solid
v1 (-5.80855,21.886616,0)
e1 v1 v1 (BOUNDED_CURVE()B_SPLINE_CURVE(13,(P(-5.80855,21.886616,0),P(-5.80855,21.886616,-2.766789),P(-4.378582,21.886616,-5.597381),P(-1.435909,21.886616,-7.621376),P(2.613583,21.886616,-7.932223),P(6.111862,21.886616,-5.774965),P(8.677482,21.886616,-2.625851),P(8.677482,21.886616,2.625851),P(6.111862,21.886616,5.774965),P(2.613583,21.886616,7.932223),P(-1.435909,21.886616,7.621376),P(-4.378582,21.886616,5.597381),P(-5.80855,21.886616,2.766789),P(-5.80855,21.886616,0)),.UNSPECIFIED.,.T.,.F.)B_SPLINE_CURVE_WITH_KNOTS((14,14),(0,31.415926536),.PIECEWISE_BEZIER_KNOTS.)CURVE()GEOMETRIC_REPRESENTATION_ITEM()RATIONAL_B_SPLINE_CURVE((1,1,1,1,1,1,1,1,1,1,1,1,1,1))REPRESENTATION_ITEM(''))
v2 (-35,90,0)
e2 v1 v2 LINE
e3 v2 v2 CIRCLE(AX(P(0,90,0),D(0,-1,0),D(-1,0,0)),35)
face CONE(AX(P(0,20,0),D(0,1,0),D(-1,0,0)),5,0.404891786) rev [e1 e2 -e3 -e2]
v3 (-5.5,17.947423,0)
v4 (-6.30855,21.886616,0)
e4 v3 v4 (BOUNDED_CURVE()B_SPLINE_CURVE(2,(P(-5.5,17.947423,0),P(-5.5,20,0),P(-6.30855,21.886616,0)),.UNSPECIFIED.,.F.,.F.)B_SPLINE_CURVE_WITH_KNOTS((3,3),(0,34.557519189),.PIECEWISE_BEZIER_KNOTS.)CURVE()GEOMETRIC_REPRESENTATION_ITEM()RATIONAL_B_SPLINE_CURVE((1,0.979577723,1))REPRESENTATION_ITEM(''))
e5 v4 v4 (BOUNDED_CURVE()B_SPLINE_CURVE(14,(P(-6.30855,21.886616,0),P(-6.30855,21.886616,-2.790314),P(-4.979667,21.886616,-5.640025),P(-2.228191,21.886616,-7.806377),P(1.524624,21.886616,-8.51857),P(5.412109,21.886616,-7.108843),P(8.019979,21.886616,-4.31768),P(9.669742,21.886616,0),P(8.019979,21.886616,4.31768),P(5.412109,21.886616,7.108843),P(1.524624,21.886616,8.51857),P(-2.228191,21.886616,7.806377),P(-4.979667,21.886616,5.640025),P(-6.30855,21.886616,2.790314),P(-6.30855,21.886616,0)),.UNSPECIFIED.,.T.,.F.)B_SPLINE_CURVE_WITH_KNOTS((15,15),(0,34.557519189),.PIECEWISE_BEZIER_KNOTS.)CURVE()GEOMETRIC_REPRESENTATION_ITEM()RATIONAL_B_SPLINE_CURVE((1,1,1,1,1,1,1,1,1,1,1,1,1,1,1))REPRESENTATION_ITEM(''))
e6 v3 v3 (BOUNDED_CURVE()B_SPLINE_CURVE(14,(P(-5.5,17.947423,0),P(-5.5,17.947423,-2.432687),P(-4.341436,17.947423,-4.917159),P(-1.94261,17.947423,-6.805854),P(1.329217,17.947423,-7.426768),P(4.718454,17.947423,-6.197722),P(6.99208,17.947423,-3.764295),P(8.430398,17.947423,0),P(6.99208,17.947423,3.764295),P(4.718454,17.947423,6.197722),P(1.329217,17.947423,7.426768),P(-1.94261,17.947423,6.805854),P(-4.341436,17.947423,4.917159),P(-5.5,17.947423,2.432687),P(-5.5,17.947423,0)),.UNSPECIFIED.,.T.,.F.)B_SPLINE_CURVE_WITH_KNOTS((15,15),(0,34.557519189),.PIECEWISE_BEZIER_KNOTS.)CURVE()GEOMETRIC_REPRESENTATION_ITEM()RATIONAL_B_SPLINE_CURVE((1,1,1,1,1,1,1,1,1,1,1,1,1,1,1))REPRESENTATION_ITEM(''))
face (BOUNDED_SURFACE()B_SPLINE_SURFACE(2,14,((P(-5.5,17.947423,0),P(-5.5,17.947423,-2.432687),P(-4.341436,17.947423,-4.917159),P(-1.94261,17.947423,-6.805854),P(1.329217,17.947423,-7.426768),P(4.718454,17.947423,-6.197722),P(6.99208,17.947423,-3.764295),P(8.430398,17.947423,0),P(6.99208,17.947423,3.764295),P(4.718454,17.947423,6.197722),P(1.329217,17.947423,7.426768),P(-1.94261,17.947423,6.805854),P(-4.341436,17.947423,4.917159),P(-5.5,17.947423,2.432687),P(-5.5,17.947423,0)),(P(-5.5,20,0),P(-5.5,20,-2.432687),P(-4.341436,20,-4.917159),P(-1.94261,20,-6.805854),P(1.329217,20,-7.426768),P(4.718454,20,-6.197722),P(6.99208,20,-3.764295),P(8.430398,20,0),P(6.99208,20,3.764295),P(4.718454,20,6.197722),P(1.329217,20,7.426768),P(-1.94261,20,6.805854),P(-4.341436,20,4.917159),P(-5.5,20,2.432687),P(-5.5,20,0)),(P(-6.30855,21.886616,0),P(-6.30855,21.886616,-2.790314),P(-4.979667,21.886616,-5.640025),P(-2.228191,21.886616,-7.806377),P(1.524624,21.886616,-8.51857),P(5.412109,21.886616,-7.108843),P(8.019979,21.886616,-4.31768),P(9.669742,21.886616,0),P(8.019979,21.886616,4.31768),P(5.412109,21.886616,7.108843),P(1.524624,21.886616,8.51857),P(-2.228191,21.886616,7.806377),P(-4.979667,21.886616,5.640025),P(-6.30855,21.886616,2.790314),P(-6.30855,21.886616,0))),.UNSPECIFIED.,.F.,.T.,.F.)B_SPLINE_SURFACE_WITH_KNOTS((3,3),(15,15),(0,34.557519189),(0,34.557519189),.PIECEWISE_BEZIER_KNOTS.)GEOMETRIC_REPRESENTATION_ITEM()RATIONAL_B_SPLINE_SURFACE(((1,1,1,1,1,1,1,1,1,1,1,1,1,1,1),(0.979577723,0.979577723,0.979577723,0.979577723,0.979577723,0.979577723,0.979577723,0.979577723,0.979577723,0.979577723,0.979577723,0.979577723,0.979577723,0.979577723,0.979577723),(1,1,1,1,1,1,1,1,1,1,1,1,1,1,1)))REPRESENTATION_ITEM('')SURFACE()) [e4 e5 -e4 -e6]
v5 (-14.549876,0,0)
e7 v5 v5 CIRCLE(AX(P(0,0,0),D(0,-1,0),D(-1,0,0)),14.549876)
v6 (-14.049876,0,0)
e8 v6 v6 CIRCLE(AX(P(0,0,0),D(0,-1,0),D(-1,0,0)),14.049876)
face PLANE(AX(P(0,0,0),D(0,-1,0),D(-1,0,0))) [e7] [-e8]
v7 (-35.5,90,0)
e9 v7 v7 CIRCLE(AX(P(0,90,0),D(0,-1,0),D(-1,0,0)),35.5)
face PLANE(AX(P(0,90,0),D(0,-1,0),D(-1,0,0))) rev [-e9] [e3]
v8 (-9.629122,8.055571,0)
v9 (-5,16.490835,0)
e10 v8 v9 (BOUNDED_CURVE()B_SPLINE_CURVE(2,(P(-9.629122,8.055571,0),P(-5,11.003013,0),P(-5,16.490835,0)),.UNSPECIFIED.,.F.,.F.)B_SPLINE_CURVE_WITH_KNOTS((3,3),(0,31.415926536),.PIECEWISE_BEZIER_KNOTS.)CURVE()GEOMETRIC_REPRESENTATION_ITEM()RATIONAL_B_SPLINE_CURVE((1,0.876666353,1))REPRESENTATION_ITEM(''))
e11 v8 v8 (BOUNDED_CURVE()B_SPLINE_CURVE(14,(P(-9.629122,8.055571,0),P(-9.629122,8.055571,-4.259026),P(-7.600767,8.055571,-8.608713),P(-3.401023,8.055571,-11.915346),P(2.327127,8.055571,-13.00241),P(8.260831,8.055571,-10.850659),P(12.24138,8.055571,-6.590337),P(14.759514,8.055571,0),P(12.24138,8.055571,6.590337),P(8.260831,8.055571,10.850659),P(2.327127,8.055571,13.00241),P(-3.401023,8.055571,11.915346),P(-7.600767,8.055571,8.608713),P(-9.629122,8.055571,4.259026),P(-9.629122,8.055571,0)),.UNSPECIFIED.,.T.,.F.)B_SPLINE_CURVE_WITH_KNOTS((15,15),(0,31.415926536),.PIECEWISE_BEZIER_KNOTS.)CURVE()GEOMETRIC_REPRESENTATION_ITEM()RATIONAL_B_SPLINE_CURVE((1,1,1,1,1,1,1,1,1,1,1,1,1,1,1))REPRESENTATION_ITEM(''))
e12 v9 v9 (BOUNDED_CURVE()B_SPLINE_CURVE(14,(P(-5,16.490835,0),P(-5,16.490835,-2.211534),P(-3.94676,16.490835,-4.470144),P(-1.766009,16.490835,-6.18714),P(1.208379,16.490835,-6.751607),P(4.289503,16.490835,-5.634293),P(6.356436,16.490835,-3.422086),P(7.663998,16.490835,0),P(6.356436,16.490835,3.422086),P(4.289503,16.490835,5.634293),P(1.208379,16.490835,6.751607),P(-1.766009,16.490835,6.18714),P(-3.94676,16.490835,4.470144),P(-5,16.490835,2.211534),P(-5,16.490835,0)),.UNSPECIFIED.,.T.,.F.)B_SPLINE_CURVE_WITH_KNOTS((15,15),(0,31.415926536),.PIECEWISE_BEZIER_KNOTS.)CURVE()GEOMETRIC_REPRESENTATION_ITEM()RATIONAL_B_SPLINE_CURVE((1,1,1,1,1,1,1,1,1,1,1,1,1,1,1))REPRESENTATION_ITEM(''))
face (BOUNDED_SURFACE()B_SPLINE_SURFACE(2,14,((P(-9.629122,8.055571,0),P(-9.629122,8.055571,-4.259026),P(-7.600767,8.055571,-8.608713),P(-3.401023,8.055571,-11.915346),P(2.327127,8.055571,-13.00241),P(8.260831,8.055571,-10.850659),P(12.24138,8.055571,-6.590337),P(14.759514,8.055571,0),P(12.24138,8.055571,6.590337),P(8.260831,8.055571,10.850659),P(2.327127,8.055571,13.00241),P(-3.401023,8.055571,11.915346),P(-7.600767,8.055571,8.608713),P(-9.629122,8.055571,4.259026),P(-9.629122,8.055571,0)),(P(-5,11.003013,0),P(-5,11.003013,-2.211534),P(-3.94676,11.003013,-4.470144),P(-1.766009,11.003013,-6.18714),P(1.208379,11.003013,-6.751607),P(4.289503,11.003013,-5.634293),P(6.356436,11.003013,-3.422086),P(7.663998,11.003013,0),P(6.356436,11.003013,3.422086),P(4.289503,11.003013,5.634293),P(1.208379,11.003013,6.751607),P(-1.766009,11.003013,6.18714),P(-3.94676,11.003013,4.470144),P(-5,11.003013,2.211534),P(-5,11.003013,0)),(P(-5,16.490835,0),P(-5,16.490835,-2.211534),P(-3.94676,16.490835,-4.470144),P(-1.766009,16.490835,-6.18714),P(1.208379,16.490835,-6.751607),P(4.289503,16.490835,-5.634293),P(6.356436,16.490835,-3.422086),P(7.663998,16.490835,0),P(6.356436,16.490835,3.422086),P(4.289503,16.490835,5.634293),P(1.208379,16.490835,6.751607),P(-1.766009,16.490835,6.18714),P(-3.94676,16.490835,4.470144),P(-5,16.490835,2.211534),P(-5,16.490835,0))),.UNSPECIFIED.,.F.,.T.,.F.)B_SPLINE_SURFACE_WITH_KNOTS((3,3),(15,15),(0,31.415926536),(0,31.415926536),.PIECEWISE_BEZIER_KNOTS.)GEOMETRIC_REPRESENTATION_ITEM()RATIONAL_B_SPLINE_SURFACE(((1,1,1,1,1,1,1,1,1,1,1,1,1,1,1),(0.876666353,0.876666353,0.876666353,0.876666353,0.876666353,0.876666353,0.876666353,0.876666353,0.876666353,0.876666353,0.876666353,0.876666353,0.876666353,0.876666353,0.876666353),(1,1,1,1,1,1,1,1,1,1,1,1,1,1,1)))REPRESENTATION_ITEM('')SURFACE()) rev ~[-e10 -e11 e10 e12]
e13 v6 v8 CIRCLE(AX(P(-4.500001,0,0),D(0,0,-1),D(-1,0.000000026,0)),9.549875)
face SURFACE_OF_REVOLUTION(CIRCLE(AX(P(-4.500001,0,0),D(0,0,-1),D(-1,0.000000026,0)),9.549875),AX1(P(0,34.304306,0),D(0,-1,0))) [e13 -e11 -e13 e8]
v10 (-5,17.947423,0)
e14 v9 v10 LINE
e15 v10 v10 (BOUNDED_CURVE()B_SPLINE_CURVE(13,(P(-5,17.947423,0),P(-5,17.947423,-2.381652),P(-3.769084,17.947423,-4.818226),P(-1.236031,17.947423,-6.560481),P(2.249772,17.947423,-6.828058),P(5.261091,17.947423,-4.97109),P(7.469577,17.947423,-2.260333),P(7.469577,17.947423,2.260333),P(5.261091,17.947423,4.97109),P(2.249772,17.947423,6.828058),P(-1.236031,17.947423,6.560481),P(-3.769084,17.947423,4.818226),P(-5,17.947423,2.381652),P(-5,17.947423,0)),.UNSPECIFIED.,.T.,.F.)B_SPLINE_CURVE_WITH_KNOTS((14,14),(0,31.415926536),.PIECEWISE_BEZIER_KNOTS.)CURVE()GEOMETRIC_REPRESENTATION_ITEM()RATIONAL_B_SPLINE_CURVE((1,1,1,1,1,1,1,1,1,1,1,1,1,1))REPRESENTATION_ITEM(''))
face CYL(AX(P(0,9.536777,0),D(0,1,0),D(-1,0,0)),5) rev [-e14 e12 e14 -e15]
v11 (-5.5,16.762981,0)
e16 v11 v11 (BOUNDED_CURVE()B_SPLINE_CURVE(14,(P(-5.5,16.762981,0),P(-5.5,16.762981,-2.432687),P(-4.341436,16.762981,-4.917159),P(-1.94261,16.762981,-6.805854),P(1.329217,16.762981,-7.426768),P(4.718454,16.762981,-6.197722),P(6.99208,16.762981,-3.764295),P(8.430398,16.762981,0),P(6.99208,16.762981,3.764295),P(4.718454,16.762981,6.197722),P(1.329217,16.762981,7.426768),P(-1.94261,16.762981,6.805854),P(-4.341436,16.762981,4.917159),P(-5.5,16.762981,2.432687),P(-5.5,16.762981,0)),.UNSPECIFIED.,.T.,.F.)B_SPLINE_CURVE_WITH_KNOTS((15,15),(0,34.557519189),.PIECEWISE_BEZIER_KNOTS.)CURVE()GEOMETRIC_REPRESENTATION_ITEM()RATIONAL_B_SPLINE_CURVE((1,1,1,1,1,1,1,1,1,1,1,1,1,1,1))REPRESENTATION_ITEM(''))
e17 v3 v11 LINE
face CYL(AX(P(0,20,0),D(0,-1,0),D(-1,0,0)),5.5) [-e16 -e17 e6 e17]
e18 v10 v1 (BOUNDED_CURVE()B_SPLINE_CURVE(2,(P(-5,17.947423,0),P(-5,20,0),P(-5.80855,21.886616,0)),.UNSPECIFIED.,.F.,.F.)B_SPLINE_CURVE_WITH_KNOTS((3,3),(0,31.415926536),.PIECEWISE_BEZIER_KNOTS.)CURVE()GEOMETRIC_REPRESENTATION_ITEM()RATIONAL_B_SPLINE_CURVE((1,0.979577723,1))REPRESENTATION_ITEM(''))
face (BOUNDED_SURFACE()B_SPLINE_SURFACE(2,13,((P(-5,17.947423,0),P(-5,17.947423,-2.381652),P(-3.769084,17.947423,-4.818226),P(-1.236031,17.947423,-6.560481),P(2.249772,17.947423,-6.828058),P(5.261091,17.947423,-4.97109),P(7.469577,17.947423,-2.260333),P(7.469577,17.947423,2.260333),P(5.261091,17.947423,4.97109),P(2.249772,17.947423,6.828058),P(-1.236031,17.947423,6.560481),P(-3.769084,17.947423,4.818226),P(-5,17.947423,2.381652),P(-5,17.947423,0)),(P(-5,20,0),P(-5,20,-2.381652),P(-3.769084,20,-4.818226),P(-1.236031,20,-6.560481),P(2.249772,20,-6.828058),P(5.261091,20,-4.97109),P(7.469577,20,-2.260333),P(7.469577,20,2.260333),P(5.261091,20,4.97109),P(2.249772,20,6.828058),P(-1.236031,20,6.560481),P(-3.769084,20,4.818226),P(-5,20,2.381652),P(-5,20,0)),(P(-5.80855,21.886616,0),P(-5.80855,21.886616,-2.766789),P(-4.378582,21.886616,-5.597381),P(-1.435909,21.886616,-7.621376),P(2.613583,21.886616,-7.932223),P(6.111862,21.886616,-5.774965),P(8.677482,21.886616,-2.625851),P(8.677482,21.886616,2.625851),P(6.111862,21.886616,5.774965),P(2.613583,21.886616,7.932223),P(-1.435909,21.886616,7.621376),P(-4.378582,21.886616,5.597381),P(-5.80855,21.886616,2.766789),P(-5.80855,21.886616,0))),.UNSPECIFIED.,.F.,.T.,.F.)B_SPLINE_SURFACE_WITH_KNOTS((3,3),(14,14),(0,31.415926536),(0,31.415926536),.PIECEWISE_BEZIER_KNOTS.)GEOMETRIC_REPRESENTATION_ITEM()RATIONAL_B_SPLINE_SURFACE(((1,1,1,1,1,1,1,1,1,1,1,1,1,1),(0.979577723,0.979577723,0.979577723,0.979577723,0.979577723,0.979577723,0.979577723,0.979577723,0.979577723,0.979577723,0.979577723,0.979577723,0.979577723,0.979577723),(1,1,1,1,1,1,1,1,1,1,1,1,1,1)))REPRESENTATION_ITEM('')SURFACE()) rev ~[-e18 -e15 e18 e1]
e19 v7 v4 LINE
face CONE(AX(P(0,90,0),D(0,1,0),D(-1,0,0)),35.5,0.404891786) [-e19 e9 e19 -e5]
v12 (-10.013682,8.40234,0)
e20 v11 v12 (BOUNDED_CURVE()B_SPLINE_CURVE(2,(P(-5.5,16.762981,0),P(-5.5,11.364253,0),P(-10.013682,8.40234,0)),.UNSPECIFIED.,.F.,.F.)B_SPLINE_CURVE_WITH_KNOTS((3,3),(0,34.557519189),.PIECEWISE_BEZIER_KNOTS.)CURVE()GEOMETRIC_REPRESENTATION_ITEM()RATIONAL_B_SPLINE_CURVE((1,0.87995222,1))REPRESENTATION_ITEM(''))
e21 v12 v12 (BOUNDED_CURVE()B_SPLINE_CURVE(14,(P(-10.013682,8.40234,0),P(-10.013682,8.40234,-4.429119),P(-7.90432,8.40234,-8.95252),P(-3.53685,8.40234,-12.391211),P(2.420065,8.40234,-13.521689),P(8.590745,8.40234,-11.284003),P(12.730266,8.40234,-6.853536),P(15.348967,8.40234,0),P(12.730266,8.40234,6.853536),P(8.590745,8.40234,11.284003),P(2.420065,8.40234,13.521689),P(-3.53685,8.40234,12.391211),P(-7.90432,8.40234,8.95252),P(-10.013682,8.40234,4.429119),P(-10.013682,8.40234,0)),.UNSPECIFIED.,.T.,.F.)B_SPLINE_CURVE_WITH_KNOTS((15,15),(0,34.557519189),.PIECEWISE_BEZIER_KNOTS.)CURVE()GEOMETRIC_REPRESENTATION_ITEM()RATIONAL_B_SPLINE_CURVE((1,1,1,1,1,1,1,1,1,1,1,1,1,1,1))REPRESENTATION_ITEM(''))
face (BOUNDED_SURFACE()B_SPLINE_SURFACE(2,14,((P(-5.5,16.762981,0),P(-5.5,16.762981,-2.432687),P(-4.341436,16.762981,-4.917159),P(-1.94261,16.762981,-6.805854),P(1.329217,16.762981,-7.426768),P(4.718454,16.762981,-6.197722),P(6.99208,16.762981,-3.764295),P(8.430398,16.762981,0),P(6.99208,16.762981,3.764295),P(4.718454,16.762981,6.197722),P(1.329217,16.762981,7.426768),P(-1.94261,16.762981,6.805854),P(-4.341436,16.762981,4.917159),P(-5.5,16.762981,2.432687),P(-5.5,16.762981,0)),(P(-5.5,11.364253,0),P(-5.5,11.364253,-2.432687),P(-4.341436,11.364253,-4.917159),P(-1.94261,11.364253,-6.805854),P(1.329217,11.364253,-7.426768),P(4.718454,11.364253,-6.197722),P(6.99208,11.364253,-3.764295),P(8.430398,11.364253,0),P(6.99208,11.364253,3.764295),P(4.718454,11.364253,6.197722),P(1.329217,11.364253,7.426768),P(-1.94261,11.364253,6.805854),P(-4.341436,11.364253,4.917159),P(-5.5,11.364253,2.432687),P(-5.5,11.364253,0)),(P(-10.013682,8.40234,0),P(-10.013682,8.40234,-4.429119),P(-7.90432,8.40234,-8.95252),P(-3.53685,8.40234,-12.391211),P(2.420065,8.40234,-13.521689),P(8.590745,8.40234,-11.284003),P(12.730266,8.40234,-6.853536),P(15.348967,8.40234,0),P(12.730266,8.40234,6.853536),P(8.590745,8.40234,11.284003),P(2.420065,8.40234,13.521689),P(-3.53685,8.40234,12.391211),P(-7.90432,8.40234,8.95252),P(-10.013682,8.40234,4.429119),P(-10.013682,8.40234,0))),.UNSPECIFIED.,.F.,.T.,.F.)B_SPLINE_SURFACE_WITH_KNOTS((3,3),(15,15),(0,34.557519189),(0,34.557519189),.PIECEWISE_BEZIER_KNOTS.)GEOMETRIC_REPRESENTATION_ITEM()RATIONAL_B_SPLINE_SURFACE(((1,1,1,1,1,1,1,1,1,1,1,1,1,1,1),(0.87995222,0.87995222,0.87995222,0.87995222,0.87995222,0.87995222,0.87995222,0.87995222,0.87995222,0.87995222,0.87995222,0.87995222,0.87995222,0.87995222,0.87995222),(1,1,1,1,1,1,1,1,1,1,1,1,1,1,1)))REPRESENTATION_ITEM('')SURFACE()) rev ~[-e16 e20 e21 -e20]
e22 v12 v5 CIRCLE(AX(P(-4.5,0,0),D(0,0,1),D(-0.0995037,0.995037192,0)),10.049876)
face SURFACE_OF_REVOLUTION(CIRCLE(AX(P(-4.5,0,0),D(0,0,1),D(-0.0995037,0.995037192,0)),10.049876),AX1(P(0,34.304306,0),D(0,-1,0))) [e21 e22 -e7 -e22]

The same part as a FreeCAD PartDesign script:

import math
import FreeCAD as App
import Part
import Sketcher


def edges_at(feature, points):
    """Names of the edges that pass closest to the given points."""
    edges = feature.Shape.Edges
    near = lambda p: min(range(len(edges)), key=lambda i: edges[i].distToShape(Part.Vertex(*p))[0])
    return sorted({f"Edge{near(p) + 1}" for p in points})

doc = App.newDocument("Part")
body = doc.addObject("PartDesign::Body", "Body")

# Sketch on XY plane
sketch1 = body.newObject("Sketcher::SketchObject", "Sketch")
sketch1.AttachmentSupport = (doc.getObject("XY_Plane"), [""])
sketch1.MapMode = "FlatFace"
sketch1.addGeometry(Part.LineSegment(App.Vector(-5.5, 20, 0), App.Vector(-5.5, 10, 0)), False)
sketch1.addGeometry(Part.ArcOfCircle(Part.Circle(App.Vector(-4.5, 0, 0), App.Vector(0, 0, 1), 10), math.radians(96), math.radians(180)), False)
sketch1.addGeometry(Part.LineSegment(App.Vector(-14.5, 0, 0), App.Vector(-14, 0, 0)), False)
sketch1.addGeometry(Part.ArcOfCircle(Part.Circle(App.Vector(-4.5, 0, 0), App.Vector(0, 0, 1), 9.5), math.radians(93), math.radians(180)), False)
sketch1.addGeometry(Part.LineSegment(App.Vector(-5, 9.5, 0), App.Vector(-5, 20, 0)), False)
sketch1.addGeometry(Part.LineSegment(App.Vector(-5, 20, 0), App.Vector(-35, 90, 0)), False)
sketch1.addGeometry(Part.LineSegment(App.Vector(-35, 90, 0), App.Vector(-35.5, 90, 0)), False)
sketch1.addGeometry(Part.LineSegment(App.Vector(-35.5, 90, 0), App.Vector(-5.5, 20, 0)), False)
sketch1.addConstraint(Sketcher.Constraint("Coincident", 0, 2, 1, 1))
sketch1.addConstraint(Sketcher.Constraint("Coincident", 1, 2, 2, 1))
sketch1.addConstraint(Sketcher.Constraint("Coincident", 2, 2, 3, 2))
sketch1.addConstraint(Sketcher.Constraint("Coincident", 3, 1, 4, 1))
sketch1.addConstraint(Sketcher.Constraint("Coincident", 4, 2, 5, 1))
sketch1.addConstraint(Sketcher.Constraint("Coincident", 5, 2, 6, 1))
sketch1.addConstraint(Sketcher.Constraint("Coincident", 6, 2, 7, 1))
sketch1.addConstraint(Sketcher.Constraint("Coincident", 7, 2, 0, 1))
sketch1.addConstraint(Sketcher.Constraint("Vertical", 0))
sketch1.addConstraint(Sketcher.Constraint("Horizontal", 2))
sketch1.addConstraint(Sketcher.Constraint("Vertical", 4))
sketch1.addConstraint(Sketcher.Constraint("Horizontal", 6))
sketch1.addConstraint(Sketcher.Constraint("Coincident", 3, 3, 1, 3))
sketch1.addConstraint(Sketcher.Constraint("PointOnObject", 1, 3, -1))
sketch1.addConstraint(Sketcher.Constraint("PointOnObject", 1, 2, -1))
sketch1.addConstraint(Sketcher.Constraint("Parallel", 5, 7))
sketch1.addConstraint(Sketcher.Constraint("Horizontal", 4, 2, 7, 2))
sketch1.addConstraint(Sketcher.Constraint("Equal", 2, 6))
sketch1.addConstraint(Sketcher.Constraint("DistanceY", 0, 2, 0, 1, 10.0))
sketch1.addConstraint(Sketcher.Constraint("DistanceX", 2, 1, 2, 2, 0.5))
sketch1.addConstraint(Sketcher.Constraint("DistanceY", -1, 1, 0, 2, 10.0))
sketch1.addConstraint(Sketcher.Constraint("DistanceX", 3, 1, -1, 1, 5.0))
sketch1.addConstraint(Sketcher.Constraint("DistanceX", 5, 2, -1, 1, 35.0))
sketch1.addConstraint(Sketcher.Constraint("DistanceY", -1, 1, 5, 2, 90.0))
sketch1.addConstraint(Sketcher.Constraint("DistanceX", 0, 2, 3, 3, 0.999999))
revolution = body.newObject("PartDesign::Revolution", "Revolution")
revolution.Profile = sketch1
revolution.ReferenceAxis = (sketch1, ["V_Axis"])
revolution.Angle = 360
doc.recompute()

fillet = body.newObject("PartDesign::Fillet", "Fillet")
fillet.Base = (revolution, edges_at(revolution, [
    (5.5, 10, 0),
    (5.5, 20, 0),
    (5, 9.537, 0),
    (5, 20, 0),
]))
fillet.Radius = 10

doc.recompute()
